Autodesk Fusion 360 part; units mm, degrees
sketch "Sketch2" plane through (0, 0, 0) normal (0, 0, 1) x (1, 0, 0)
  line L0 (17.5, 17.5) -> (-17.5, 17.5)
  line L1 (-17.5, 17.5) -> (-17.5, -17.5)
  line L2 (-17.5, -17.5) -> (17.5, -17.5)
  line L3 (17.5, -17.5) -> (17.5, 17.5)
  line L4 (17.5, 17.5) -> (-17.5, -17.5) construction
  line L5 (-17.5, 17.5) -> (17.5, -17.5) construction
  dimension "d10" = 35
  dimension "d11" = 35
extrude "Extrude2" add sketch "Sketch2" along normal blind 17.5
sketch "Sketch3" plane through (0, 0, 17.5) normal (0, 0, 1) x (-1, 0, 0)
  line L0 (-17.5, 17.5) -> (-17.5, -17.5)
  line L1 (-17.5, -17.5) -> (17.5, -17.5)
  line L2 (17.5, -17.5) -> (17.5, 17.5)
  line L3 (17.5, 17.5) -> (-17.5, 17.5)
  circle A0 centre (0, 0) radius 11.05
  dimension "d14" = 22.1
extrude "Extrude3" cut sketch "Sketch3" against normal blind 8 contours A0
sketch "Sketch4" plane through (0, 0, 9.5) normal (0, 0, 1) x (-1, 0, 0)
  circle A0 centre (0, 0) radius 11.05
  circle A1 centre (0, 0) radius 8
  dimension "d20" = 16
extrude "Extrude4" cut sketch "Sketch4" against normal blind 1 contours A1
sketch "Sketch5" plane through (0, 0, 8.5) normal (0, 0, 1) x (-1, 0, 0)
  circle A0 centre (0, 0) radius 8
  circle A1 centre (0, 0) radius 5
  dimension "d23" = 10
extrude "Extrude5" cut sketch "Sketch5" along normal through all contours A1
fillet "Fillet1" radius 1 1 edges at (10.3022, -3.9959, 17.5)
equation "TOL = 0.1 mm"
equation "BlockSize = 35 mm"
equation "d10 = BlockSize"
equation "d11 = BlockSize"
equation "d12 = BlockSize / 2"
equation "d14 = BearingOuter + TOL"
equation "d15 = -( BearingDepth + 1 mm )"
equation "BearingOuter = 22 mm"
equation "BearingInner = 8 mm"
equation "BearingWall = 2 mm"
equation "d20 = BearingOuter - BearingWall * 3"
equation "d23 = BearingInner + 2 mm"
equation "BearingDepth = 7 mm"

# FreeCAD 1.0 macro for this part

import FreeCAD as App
import Part
import Sketcher
from FreeCAD import Vector
Q = App.Units.Quantity


def edges_at(feature, points):
    """Names of the edges that pass closest to the given points."""
    edges = feature.Shape.Edges
    near = lambda p: min(range(len(edges)), key=lambda i: edges[i].distToShape(Part.Vertex(*p))[0])
    return sorted({f"Edge{near(p) + 1}" for p in points})

doc = App.newDocument("Part")
body = doc.addObject("PartDesign::Body", "Body")

# Sketch on XY plane
sketch1 = body.newObject("Sketcher::SketchObject", "Sketch")
sketch1.AttachmentSupport = (doc.getObject("XY_Plane"), [""])
sketch1.MapMode = "FlatFace"
sketch1.addGeometry([
    Part.LineSegment(Vector(18, -18, 0), Vector(18, 18, 0)),
    Part.LineSegment(Vector(18, 18, 0), Vector(-18, 18, 0)),
    Part.LineSegment(Vector(-18, 18, 0), Vector(-18, -18, 0)),
    Part.LineSegment(Vector(-18, -18, 0), Vector(18, -18, 0)),
], False)
sketch1.addConstraint([
    Sketcher.Constraint("Coincident", 0, 2, 1, 1),
    Sketcher.Constraint("Coincident", 1, 2, 2, 1),
    Sketcher.Constraint("Coincident", 2, 2, 3, 1),
    Sketcher.Constraint("Coincident", 3, 2, 0, 1),
    Sketcher.Constraint("Vertical", 0),
    Sketcher.Constraint("Horizontal", 1),
    Sketcher.Constraint("Vertical", 2),
    Sketcher.Constraint("Horizontal", 3),
    Sketcher.Constraint("Symmetric", 0, 2, 2, 2, -1, 1),
    Sketcher.Constraint("Equal", 3, 0),
    Sketcher.Constraint("DistanceX", 1, 2, 1, 1, Q("35 mm")),
])
pad1 = body.newObject("PartDesign::Pad", "Pad")
pad1.Profile = sketch1
pad1.Length = 17.5

# Sketch on XY plane
sketch2 = body.newObject("Sketcher::SketchObject", "Sketch001")
sketch2.AttachmentSupport = (doc.getObject("XY_Plane"), [""])
sketch2.MapMode = "FlatFace"
sketch2.AttachmentOffset = App.Placement(Vector(0, 0, 17.5), App.Rotation())
sketch2.addGeometry(Part.Circle(Vector(0, 0, 0), Vector(0, 0, 1), 11), False)
sketch2.addConstraint([
    Sketcher.Constraint("Coincident", 0, 3, -1, 1),
    Sketcher.Constraint("Diameter", 0, Q("22.1 mm")),
])
pocket1 = body.newObject("PartDesign::Pocket", "Pocket")
pocket1.Profile = sketch2
pocket1.Length = 8

# Sketch on XY plane
sketch3 = body.newObject("Sketcher::SketchObject", "Sketch002")
sketch3.AttachmentSupport = (doc.getObject("XY_Plane"), [""])
sketch3.MapMode = "FlatFace"
sketch3.AttachmentOffset = App.Placement(Vector(0, 0, 9.5), App.Rotation())
sketch3.addGeometry(Part.Circle(Vector(0, 0, 0), Vector(0, 0, 1), 8), False)
sketch3.addConstraint([
    Sketcher.Constraint("Coincident", 0, 3, -1, 1),
    Sketcher.Constraint("Diameter", 0, Q("16 mm")),
])
pocket2 = body.newObject("PartDesign::Pocket", "Pocket001")
pocket2.Profile = sketch3
pocket2.Length = 1

# Sketch on XY plane
sketch4 = body.newObject("Sketcher::SketchObject", "Sketch003")
sketch4.AttachmentSupport = (doc.getObject("XY_Plane"), [""])
sketch4.MapMode = "FlatFace"
sketch4.AttachmentOffset = App.Placement(Vector(0, 0, 8.5), App.Rotation())
sketch4.addGeometry(Part.Circle(Vector(0, 0, 0), Vector(0, 0, 1), 5), False)
sketch4.addConstraint([
    Sketcher.Constraint("Coincident", 0, 3, -1, 1),
    Sketcher.Constraint("Diameter", 0, Q("10 mm")),
])
pocket3 = body.newObject("PartDesign::Pocket", "Pocket002")
pocket3.Profile = sketch4
pocket3.Type = "ThroughAll"
pocket3.Reversed = True
doc.recompute()

fillet = body.newObject("PartDesign::Fillet", "Fillet")
fillet.Base = (pocket3, edges_at(pocket3, [(10.302, -3.996, 17.5)]))
fillet.Radius = 1

doc.recompute()
